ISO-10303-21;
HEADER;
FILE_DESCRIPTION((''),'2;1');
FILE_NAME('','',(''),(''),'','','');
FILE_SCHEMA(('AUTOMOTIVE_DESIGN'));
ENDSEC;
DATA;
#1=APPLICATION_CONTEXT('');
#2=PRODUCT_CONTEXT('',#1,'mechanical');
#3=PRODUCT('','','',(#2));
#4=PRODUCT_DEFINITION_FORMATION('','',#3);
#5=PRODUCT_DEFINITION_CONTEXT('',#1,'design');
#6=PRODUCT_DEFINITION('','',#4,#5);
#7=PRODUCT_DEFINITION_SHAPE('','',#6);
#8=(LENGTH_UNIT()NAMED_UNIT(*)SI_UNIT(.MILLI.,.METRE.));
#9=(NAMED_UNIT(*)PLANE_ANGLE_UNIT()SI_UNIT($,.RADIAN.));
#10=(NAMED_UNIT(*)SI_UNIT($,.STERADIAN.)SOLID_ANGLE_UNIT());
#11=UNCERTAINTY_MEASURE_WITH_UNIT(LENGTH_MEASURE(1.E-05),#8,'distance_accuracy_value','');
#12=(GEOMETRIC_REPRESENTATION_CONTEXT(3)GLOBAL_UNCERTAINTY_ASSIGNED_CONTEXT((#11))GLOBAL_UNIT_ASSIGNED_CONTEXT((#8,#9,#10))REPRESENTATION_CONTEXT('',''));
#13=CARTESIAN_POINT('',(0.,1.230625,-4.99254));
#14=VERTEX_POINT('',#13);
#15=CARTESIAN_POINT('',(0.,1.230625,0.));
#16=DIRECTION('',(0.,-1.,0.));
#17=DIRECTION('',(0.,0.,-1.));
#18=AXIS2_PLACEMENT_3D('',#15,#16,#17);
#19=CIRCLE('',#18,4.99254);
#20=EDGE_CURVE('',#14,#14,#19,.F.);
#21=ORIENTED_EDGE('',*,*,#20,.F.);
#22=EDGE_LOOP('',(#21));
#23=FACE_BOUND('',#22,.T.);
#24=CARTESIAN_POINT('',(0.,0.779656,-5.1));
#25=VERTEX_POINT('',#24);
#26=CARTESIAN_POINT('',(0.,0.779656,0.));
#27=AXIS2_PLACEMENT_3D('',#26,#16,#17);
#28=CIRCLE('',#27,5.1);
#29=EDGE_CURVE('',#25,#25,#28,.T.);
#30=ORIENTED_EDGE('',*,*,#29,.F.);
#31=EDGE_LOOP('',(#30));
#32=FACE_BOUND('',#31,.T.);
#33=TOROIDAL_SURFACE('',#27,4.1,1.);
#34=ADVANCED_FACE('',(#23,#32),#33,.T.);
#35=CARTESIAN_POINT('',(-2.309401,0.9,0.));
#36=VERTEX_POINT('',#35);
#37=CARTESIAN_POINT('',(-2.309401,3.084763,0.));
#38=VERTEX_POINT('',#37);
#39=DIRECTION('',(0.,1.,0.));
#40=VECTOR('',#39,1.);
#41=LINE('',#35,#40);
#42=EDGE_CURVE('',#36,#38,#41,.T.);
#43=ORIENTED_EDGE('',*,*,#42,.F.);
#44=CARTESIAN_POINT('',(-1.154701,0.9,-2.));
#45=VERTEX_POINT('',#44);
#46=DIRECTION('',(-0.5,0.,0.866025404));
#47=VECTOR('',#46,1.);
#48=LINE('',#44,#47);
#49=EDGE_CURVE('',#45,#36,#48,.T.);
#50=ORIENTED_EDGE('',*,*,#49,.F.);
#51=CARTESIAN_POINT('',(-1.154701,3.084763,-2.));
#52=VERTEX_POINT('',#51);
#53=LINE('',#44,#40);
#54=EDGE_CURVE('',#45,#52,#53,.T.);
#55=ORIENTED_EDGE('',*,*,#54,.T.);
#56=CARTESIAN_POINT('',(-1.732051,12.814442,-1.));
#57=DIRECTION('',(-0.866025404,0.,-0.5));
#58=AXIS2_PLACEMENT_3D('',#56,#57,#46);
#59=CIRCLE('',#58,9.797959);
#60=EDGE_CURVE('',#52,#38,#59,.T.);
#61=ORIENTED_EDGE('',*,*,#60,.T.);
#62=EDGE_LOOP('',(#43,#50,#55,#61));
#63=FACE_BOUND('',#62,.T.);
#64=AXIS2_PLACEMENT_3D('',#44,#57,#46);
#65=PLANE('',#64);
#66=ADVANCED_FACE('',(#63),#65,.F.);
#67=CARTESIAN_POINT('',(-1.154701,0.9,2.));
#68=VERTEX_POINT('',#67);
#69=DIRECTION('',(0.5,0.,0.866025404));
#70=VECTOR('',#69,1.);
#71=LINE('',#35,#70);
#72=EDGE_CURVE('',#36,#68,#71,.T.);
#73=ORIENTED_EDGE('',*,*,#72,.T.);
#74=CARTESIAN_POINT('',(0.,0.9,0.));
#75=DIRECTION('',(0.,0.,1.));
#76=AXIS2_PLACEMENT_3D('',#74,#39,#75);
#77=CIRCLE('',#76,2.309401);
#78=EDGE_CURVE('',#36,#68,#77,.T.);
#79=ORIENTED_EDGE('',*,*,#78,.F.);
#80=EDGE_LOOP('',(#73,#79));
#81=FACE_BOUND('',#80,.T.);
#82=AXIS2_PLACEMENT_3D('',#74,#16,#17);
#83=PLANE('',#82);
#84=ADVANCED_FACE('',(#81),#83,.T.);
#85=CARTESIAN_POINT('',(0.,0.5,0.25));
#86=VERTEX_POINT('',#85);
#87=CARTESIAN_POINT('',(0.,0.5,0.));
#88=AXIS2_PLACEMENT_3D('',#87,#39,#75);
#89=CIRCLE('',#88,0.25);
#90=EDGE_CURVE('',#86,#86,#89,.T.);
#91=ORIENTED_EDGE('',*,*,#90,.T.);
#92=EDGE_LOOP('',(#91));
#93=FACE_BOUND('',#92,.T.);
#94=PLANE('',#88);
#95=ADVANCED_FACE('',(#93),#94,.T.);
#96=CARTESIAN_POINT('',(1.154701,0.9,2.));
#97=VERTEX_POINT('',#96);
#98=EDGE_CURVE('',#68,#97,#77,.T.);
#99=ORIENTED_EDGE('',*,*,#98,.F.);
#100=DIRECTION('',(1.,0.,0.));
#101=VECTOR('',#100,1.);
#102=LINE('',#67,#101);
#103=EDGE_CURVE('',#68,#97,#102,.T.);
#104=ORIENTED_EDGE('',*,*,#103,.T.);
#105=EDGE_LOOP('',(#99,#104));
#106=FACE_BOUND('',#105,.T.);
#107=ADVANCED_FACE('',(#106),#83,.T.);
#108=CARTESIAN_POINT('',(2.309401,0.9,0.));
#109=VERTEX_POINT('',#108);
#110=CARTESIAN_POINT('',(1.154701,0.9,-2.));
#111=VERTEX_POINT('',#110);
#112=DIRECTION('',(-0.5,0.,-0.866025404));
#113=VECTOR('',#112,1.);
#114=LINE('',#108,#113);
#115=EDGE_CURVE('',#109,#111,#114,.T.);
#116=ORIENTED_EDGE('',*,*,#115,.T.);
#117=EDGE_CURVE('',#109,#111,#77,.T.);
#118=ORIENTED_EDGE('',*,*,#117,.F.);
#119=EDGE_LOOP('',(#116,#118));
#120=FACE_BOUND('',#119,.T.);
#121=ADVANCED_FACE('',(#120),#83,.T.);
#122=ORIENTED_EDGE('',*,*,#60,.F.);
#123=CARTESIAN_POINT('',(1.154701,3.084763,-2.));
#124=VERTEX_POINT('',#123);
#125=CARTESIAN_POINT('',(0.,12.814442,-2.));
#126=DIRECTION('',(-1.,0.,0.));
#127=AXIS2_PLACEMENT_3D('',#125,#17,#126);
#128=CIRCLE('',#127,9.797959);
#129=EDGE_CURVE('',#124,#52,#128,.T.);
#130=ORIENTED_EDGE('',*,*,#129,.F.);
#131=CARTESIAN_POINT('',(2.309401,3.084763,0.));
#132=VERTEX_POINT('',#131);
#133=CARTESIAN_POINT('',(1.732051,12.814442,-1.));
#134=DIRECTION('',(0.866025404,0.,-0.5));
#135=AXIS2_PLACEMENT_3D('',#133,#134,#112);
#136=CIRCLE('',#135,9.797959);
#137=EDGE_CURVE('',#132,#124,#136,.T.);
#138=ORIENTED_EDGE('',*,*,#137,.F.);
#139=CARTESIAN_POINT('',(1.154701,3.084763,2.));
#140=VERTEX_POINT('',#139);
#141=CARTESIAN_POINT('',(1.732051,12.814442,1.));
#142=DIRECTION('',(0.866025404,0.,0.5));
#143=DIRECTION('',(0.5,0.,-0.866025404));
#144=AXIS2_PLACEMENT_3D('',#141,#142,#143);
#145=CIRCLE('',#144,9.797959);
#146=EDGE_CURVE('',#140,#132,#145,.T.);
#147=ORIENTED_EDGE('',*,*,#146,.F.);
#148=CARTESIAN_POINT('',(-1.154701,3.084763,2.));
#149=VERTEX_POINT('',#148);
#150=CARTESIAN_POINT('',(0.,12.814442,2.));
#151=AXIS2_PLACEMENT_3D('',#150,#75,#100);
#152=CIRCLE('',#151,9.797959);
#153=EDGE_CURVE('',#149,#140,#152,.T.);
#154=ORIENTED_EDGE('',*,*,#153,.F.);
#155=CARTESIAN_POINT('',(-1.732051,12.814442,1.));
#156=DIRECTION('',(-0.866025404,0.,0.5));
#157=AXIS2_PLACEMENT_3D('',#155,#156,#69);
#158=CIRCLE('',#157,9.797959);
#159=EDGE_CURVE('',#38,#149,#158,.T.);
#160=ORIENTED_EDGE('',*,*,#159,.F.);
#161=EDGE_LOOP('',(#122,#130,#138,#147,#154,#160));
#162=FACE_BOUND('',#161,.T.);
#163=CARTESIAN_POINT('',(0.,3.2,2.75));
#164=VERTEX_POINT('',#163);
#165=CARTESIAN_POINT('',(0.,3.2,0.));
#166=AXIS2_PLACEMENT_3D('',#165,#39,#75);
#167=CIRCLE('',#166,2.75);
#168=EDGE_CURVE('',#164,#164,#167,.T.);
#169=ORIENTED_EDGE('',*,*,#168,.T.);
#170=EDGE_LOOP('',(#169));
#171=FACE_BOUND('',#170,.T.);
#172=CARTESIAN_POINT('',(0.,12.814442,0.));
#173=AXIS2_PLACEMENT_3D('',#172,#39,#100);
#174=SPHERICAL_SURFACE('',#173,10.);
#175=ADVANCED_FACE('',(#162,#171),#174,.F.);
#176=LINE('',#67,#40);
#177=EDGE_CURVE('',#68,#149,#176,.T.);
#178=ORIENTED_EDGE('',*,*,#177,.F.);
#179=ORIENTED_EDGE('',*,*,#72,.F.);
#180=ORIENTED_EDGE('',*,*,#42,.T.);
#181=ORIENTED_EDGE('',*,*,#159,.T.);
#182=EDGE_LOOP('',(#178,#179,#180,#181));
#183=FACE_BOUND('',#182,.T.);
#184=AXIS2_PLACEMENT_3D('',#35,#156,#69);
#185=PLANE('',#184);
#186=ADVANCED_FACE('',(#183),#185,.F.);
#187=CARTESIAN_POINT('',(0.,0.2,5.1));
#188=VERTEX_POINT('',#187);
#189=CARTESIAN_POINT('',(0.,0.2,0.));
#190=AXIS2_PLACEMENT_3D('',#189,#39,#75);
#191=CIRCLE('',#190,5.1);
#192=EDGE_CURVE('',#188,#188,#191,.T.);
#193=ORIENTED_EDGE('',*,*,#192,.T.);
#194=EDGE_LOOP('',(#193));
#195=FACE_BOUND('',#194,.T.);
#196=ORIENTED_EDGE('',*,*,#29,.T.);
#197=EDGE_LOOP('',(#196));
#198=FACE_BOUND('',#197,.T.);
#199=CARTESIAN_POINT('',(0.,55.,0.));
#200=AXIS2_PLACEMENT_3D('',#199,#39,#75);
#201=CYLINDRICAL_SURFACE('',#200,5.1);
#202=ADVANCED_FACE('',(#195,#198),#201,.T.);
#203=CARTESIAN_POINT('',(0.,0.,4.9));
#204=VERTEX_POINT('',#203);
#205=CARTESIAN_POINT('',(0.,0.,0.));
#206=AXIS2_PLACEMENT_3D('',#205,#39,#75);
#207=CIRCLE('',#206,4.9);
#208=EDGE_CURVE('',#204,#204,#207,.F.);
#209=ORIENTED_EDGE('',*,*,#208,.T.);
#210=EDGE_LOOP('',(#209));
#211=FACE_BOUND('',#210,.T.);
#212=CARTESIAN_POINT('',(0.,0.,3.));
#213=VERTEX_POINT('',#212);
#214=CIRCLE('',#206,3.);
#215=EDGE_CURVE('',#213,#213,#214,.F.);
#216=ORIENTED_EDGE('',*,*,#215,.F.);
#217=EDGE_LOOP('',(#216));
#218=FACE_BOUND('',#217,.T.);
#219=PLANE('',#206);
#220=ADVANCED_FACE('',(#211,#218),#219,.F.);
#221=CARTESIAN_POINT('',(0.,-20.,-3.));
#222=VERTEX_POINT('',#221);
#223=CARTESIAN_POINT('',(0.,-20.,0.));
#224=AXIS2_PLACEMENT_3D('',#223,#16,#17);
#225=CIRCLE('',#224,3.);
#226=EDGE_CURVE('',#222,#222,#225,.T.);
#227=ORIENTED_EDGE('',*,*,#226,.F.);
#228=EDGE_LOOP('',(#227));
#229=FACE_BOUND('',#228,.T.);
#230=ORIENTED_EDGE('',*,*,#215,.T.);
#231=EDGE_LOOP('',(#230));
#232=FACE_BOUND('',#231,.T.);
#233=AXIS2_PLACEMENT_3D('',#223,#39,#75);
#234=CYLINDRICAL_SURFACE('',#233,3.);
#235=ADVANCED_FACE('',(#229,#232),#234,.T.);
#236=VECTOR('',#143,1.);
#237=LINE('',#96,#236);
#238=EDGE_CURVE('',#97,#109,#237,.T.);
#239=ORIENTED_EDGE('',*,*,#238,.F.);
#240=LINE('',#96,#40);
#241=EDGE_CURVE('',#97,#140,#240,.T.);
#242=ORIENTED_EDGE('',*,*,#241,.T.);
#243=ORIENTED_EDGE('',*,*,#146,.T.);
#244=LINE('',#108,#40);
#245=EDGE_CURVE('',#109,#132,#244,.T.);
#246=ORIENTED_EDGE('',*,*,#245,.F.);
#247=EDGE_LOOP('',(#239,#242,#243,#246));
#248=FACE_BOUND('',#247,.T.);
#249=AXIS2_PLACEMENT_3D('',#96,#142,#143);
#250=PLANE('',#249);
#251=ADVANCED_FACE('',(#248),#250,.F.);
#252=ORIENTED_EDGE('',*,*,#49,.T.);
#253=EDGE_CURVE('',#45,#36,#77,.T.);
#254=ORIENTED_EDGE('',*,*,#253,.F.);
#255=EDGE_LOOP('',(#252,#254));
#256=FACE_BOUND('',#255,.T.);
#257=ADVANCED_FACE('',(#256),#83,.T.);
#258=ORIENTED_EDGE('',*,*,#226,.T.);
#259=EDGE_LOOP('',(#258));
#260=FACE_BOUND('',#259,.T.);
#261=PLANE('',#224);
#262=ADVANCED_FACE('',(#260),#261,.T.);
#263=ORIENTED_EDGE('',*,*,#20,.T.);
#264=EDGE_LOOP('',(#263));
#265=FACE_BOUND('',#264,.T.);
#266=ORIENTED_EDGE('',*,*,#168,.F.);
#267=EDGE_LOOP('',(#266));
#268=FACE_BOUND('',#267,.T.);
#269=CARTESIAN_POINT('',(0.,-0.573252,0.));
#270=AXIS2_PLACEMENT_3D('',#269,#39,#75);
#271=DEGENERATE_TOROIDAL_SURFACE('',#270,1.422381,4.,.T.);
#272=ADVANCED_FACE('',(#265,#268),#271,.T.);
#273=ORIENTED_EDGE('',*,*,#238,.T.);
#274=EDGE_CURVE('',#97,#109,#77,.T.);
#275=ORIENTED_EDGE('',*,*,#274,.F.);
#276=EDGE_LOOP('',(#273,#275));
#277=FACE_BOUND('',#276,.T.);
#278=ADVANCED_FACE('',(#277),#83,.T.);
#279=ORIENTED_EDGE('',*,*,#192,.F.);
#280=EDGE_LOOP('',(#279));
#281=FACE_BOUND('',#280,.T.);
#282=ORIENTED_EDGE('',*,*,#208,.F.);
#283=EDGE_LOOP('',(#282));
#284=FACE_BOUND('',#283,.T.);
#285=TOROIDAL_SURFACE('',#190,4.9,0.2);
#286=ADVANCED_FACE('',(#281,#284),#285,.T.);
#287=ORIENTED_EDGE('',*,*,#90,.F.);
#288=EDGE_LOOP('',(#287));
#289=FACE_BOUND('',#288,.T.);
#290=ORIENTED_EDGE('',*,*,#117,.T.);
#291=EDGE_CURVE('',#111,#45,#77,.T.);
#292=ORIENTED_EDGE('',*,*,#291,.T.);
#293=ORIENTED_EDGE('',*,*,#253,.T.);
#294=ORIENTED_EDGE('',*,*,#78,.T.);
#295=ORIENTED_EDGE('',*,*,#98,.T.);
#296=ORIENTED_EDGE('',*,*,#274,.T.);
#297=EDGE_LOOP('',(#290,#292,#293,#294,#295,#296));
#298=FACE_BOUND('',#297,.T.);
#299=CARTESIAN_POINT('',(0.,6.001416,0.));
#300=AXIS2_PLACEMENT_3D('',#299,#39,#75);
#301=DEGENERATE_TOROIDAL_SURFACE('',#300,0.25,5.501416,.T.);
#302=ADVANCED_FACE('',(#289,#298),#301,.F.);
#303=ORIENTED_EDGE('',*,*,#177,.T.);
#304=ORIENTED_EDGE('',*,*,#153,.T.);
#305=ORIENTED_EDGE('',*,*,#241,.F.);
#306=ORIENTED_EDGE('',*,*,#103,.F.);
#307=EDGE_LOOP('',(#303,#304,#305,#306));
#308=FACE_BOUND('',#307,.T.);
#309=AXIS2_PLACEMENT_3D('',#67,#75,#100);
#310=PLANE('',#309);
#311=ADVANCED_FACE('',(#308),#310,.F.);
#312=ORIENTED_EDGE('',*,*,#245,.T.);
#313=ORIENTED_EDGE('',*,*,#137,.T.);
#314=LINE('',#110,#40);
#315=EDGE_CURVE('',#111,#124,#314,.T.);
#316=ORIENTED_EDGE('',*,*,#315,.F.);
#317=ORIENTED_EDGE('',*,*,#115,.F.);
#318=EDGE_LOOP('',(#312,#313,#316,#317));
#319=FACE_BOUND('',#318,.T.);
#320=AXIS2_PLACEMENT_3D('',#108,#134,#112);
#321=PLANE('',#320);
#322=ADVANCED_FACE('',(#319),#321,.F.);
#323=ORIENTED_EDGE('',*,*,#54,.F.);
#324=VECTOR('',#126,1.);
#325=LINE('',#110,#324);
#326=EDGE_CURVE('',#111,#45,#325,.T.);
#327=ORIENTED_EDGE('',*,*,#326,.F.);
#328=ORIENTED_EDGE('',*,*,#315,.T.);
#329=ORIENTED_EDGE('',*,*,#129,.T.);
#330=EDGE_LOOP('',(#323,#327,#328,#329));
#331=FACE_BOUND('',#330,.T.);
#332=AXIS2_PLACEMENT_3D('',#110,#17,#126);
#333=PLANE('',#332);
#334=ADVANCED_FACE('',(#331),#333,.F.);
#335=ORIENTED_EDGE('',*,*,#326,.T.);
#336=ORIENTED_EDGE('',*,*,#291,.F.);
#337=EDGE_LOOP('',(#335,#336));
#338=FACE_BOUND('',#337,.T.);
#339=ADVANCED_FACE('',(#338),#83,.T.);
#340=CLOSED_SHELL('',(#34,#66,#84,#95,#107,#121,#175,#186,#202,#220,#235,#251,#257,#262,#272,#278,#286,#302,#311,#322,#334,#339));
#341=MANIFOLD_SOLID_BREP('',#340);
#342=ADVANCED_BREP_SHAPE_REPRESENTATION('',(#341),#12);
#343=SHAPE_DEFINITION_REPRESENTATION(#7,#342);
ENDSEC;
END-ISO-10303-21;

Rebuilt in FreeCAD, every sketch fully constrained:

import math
import FreeCAD as App
import Part
import Sketcher
from FreeCAD import Vector
Q = App.Units.Quantity


def edges_at(feature, points):
    """Names of the edges that pass closest to the given points."""
    edges = feature.Shape.Edges
    near = lambda p: min(range(len(edges)), key=lambda i: edges[i].distToShape(Part.Vertex(*p))[0])
    return sorted({f"Edge{near(p) + 1}" for p in points})

doc = App.newDocument("Part")
body = doc.addObject("PartDesign::Body", "Body")

# Sketch on XY plane
sketch1 = doc.addObject("Sketcher::SketchObject", "Sketch")
body.addObject(sketch1)
sketch1.AttachmentSupport = (doc.XY_Plane, [""])
sketch1.MapMode = "FlatFace"
sketch1.addGeometry([
    Part.LineSegment(Vector(0, 0, 0), Vector(5.1, 0, 0)),  # 0
    Part.LineSegment(Vector(5.1, 0, 0), Vector(5.1, 1, 0)),  # 1
    Part.ArcOfCircle(Part.Circle(Vector(1.422381, -0.573252, 0), Vector(0, 0, 1), 4), math.radians(23.160798), math.radians(70.615578)),  # 2
    Part.LineSegment(Vector(2.75, 3.2, 0), Vector(0, 3.2, 0)),  # 3
    Part.LineSegment(Vector(0, 3.2, 0), Vector(0, 0, 0)),  # 4
], False)
sketch1.addConstraint([
    Sketcher.Constraint("Coincident", 0, 2, 1, 1),
    Sketcher.Constraint("Coincident", 1, 2, 2, 1),
    Sketcher.Constraint("Coincident", 2, 2, 3, 1),
    Sketcher.Constraint("Coincident", 3, 2, 4, 1),
    Sketcher.Constraint("Coincident", 4, 2, 0, 1),
    Sketcher.Constraint("Horizontal", 0),
    Sketcher.Constraint("Vertical", 1),
    Sketcher.Constraint("Horizontal", 3),
    Sketcher.Constraint("Vertical", 4),
    Sketcher.Constraint("Coincident", 4, 2, -1, 1),
    Sketcher.Constraint("Radius", 2, Q("4 mm")),
    Sketcher.Constraint("DistanceY", 1, 1, 1, 2, Q("1 mm")),
    Sketcher.Constraint("DistanceX", 0, 1, 0, 2, Q("5.1 mm")),
    Sketcher.Constraint("DistanceY", 4, 2, 4, 1, Q("3.2 mm")),
    Sketcher.Constraint("DistanceX", 3, 2, 3, 1, Q("2.75 mm")),
])
revolution = doc.addObject("PartDesign::Revolution", "Revolution")
body.addObject(revolution)
revolution.Profile = sketch1
revolution.ReferenceAxis = (sketch1, ["V_Axis"])
revolution.Angle = 360
doc.recompute()

fillet = doc.addObject("PartDesign::Fillet", "Fillet")
body.addObject(fillet)
fillet.Base = (revolution, edges_at(revolution, [(-5.1, 0, 0)]))
fillet.Radius = 0.2
doc.recompute()

fillet2 = doc.addObject("PartDesign::Fillet", "Fillet001")
body.addObject(fillet2)
fillet2.Base = (fillet, edges_at(fillet, [(-5.1, 1, 0)]))
fillet2.Radius = 1

# Sketch on XZ plane
sketch2 = doc.addObject("Sketcher::SketchObject", "Sketch001")
body.addObject(sketch2)
sketch2.AttachmentSupport = (doc.XZ_Plane, [""])
sketch2.MapMode = "FlatFace"
sketch2.addGeometry(Part.Circle(Vector(0, 0, 0), Vector(0, 0, 1), 3), False)
sketch2.addConstraint([
    Sketcher.Constraint("Coincident", 0, 3, -1, 1),
    Sketcher.Constraint("Diameter", 0, Q("6 mm")),
])
pad1 = doc.addObject("PartDesign::Pad", "Pad")
body.addObject(pad1)
pad1.Profile = sketch2
pad1.Length = 20

# Sketch on XY plane
sketch3 = doc.addObject("Sketcher::SketchObject", "Sketch002")
body.addObject(sketch3)
sketch3.AttachmentSupport = (doc.XY_Plane, [""])
sketch3.MapMode = "FlatFace"
sketch3.addGeometry([
    Part.LineSegment(Vector(0, 3.2, 0), Vector(0, 0, 0)),
    Part.LineSegment(Vector(0, 0, 0), Vector(4.9, 0, 0)),
    Part.LineSegment(Vector(4.9, 0, 0), Vector(2.75, 3.2, 0)),
    Part.LineSegment(Vector(2.75, 3.2, 0), Vector(0, 3.2, 0)),
], False)
sketch3.addConstraint([
    Sketcher.Constraint("Coincident", 0, 2, 1, 1),
    Sketcher.Constraint("Coincident", 1, 2, 2, 1),
    Sketcher.Constraint("Coincident", 2, 2, 3, 1),
    Sketcher.Constraint("Coincident", 3, 2, 0, 1),
    Sketcher.Constraint("Vertical", 0),
    Sketcher.Constraint("Horizontal", 1),
    Sketcher.Constraint("Horizontal", 3),
    Sketcher.Constraint("Coincident", 0, 2, -1, 1),
    Sketcher.Constraint("DistanceX", 1, 1, 1, 2, Q("4.9 mm")),
    Sketcher.Constraint("DistanceY", 0, 2, 0, 1, Q("3.2 mm")),
    Sketcher.Constraint("DistanceX", 3, 2, 3, 1, Q("2.75 mm")),
])
revolution2 = doc.addObject("PartDesign::Revolution", "Revolution001")
body.addObject(revolution2)
revolution2.Profile = sketch3
revolution2.ReferenceAxis = (sketch3, ["V_Axis"])
revolution2.Angle = 360

# Sketch on XZ plane
sketch4 = doc.addObject("Sketcher::SketchObject", "Sketch003")
body.addObject(sketch4)
sketch4.AttachmentSupport = (doc.XZ_Plane, [""])
sketch4.MapMode = "FlatFace"
sketch4.AttachmentOffset = App.Placement(Vector(0, 0, -3.2), App.Rotation())
sketch4.addGeometry([
    Part.LineSegment(Vector(1.154701, 2, 0), Vector(2.309401, 0, 0)),  # 0
    Part.LineSegment(Vector(2.309401, 0, 0), Vector(1.154701, -2, 0)),  # 1
    Part.LineSegment(Vector(1.154701, -2, 0), Vector(-1.154701, -2, 0)),  # 2
    Part.LineSegment(Vector(-1.154701, -2, 0), Vector(-2.309401, 0, 0)),  # 3
    Part.LineSegment(Vector(-2.309401, 0, 0), Vector(-1.154701, 2, 0)),  # 4
    Part.LineSegment(Vector(-1.154701, 2, 0), Vector(1.154701, 2, 0)),  # 5
], False)
sketch4.addConstraint([
    Sketcher.Constraint("Coincident", 0, 2, 1, 1),
    Sketcher.Constraint("Coincident", 1, 2, 2, 1),
    Sketcher.Constraint("Coincident", 2, 2, 3, 1),
    Sketcher.Constraint("Coincident", 3, 2, 4, 1),
    Sketcher.Constraint("Coincident", 4, 2, 5, 1),
    Sketcher.Constraint("Coincident", 5, 2, 0, 1),
    Sketcher.Constraint("Horizontal", 2),
    Sketcher.Constraint("Horizontal", 5),
    Sketcher.Constraint("Symmetric", 0, 2, 3, 2, -1, 1),
    Sketcher.Constraint("Symmetric", 1, 2, 4, 2, -1, 1),
    Sketcher.Constraint("PointOnObject", 0, 2, -1),
    Sketcher.Constraint("Parallel", 0, 3),
    Sketcher.Constraint("Vertical", 2, 2, 4, 2),
    Sketcher.Constraint("Angle", 0, Q("-60 deg")),
    Sketcher.Constraint("DistanceY", 1, 2, -1, 1, Q("2 mm")),
    Sketcher.Constraint("DistanceX", 2, 2, 2, 1, Q("2.309401 mm")),
])
pocket1 = doc.addObject("PartDesign::Pocket", "Pocket")
body.addObject(pocket1)
pocket1.Profile = sketch4
pocket1.Length = 2.3
pocket1.Reversed = True

# Sketch on XY plane
sketch5 = doc.addObject("Sketcher::SketchObject", "Sketch004")
body.addObject(sketch5)
sketch5.AttachmentSupport = (doc.XY_Plane, [""])
sketch5.MapMode = "FlatFace"
sketch5.addGeometry([
    Part.LineSegment(Vector(0, 0.9, 0), Vector(0, 0.5, 0)),
    Part.LineSegment(Vector(0, 0.5, 0), Vector(0.25, 0.5, 0)),
    Part.ArcOfCircle(Part.Circle(Vector(0.25, 6.001416, 0), Vector(0, 0, 1), 5.501416), math.radians(-90), math.radians(-68.016462)),
    Part.LineSegment(Vector(2.309401, 0.9, 0), Vector(0, 0.9, 0)),
], False)
sketch5.addConstraint([
    Sketcher.Constraint("Coincident", 0, 2, 1, 1),
    Sketcher.Constraint("Tangent", 1, 2, 2, 1),
    Sketcher.Constraint("Coincident", 2, 2, 3, 1),
    Sketcher.Constraint("Coincident", 3, 2, 0, 1),
    Sketcher.Constraint("Vertical", 0),
    Sketcher.Constraint("Horizontal", 1),
    Sketcher.Constraint("Horizontal", 3),
    Sketcher.Constraint("PointOnObject", 0, 2, -2),
    Sketcher.Constraint("DistanceY", 0, 2, 0, 1, Q("0.4 mm")),
    Sketcher.Constraint("DistanceX", 1, 1, 1, 2, Q("0.25 mm")),
    Sketcher.Constraint("DistanceY", -1, 1, 0, 2, Q("0.5 mm")),
    Sketcher.Constraint("DistanceX", 3, 2, 3, 1, Q("2.309401 mm")),
])
groove = doc.addObject("PartDesign::Groove", "Groove")
body.addObject(groove)
groove.Profile = sketch5
groove.ReferenceAxis = (sketch5, ["V_Axis"])
groove.Angle = 360

# Sketch on XY plane
sketch6 = doc.addObject("Sketcher::SketchObject", "Sketch005")
body.addObject(sketch6)
sketch6.AttachmentSupport = (doc.XY_Plane, [""])
sketch6.MapMode = "FlatFace"
sketch6.addGeometry([
    Part.ArcOfCircle(Part.Circle(Vector(0, 12.814442, 0), Vector(0, 0, 1), 10), math.radians(-90), math.radians(-74.037986)),
    Part.LineSegment(Vector(2.75, 3.2, 0), Vector(0, 3.2, 0)),
    Part.LineSegment(Vector(0, 3.2, 0), Vector(0, 2.814442, 0)),
], False)
sketch6.addConstraint([
    Sketcher.Constraint("Coincident", 0, 2, 1, 1),
    Sketcher.Constraint("Coincident", 1, 2, 2, 1),
    Sketcher.Constraint("Coincident", 2, 2, 0, 1),
    Sketcher.Constraint("Horizontal", 1),
    Sketcher.Constraint("Vertical", 2),
    Sketcher.Constraint("PointOnObject", 0, 3, -2),
    Sketcher.Constraint("PointOnObject", 1, 2, -2),
    Sketcher.Constraint("Radius", 0, Q("10 mm")),
    Sketcher.Constraint("DistanceX", 1, 2, 1, 1, Q("2.75 mm")),
    Sketcher.Constraint("DistanceY", -1, 1, 0, 2, Q("3.2 mm")),
])
groove2 = doc.addObject("PartDesign::Groove", "Groove001")
body.addObject(groove2)
groove2.Profile = sketch6
groove2.ReferenceAxis = (sketch6, ["V_Axis"])
groove2.Angle = 360

doc.recompute()
